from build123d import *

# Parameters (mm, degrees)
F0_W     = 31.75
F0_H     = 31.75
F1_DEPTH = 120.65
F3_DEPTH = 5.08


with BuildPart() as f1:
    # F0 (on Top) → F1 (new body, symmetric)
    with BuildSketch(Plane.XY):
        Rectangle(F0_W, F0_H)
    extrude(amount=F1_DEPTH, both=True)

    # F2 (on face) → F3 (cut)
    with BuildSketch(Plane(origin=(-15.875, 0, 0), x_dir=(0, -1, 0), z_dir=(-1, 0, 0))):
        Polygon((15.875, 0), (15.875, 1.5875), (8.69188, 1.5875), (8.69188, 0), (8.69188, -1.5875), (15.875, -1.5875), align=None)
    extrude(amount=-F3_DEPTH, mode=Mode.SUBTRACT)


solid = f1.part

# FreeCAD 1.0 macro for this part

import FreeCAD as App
import Part
import Sketcher

V = App.Vector
Q = App.Units.Quantity

doc = App.newDocument("Part")
body = doc.addObject("PartDesign::Body", "Body")

# Sketch on XY plane
sketch1 = body.newObject("Sketcher::SketchObject", "Sketch")
sketch1.AttachmentSupport = (doc.getObject("XY_Plane"), [""])
sketch1.MapMode = "FlatFace"
sketch1.addGeometry([
    Part.LineSegment(V(-15.875, 15.875, 0), V(-15.875, -15.875, 0)),
    Part.LineSegment(V(-15.875, -15.875, 0), V(15.875, -15.875, 0)),
    Part.LineSegment(V(15.875, -15.875, 0), V(15.875, 15.875, 0)),
    Part.LineSegment(V(15.875, 15.875, 0), V(-15.875, 15.875, 0)),
], False)
sketch1.addConstraint([
    Sketcher.Constraint("Coincident", 0, 2, 1, 1),
    Sketcher.Constraint("Coincident", 1, 2, 2, 1),
    Sketcher.Constraint("Coincident", 2, 2, 3, 1),
    Sketcher.Constraint("Coincident", 3, 2, 0, 1),
    Sketcher.Constraint("Vertical", 0),
    Sketcher.Constraint("Horizontal", 1),
    Sketcher.Constraint("Vertical", 2),
    Sketcher.Constraint("Horizontal", 3),
    Sketcher.Constraint("Symmetric", 0, 2, 2, 2, -1, 1),
    Sketcher.Constraint("Equal", 3, 0),
    Sketcher.Constraint("DistanceX", 1, 1, 1, 2, Q("1.25 in")),
])
pad1 = body.newObject("PartDesign::Pad", "Pad")
pad1.Profile = sketch1
pad1.Length = Q("9.5 in")
pad1.Midplane = True

# Sketch on YZ plane
sketch2 = body.newObject("Sketcher::SketchObject", "Sketch001")
sketch2.AttachmentSupport = (doc.getObject("YZ_Plane"), [""])
sketch2.MapMode = "FlatFace"
sketch2.AttachmentOffset = App.Placement(V(0, 0, -0.625 * 25.4), App.Rotation())
sketch2.addGeometry([
    Part.LineSegment(V(-15.875, 1.5875, 0), V(-8.69188, 1.5875, 0)),
    Part.LineSegment(V(-8.69188, 1.5875, 0), V(-8.69188, -1.5875, 0)),
    Part.LineSegment(V(-8.69188, -1.5875, 0), V(-15.875, -1.5875, 0)),
    Part.LineSegment(V(-15.875, -1.5875, 0), V(-15.875, 1.5875, 0)),
], False)
sketch2.addConstraint([
    Sketcher.Constraint("Coincident", 0, 2, 1, 1),
    Sketcher.Constraint("Coincident", 1, 2, 2, 1),
    Sketcher.Constraint("Coincident", 2, 2, 3, 1),
    Sketcher.Constraint("Coincident", 3, 2, 0, 1),
    Sketcher.Constraint("Horizontal", 0),
    Sketcher.Constraint("Vertical", 1),
    Sketcher.Constraint("Horizontal", 2),
    Sketcher.Constraint("Vertical", 3),
    Sketcher.Constraint("DistanceY", 1, 2, 1, 1, Q("0.125 in")),
    Sketcher.Constraint("DistanceX", 0, 1, 0, 2, Q("0.2828 in")),
    Sketcher.Constraint("DistanceY", -1, 1, 0, 2, Q("0.0625 in")),
    Sketcher.Constraint("DistanceX", 2, 2, -1, 1, Q("0.625 in")),
])
pocket1 = body.newObject("PartDesign::Pocket", "Pocket")
pocket1.Profile = sketch2
pocket1.Length = Q("0.2 in")
pocket1.Reversed = True

doc.recompute()
